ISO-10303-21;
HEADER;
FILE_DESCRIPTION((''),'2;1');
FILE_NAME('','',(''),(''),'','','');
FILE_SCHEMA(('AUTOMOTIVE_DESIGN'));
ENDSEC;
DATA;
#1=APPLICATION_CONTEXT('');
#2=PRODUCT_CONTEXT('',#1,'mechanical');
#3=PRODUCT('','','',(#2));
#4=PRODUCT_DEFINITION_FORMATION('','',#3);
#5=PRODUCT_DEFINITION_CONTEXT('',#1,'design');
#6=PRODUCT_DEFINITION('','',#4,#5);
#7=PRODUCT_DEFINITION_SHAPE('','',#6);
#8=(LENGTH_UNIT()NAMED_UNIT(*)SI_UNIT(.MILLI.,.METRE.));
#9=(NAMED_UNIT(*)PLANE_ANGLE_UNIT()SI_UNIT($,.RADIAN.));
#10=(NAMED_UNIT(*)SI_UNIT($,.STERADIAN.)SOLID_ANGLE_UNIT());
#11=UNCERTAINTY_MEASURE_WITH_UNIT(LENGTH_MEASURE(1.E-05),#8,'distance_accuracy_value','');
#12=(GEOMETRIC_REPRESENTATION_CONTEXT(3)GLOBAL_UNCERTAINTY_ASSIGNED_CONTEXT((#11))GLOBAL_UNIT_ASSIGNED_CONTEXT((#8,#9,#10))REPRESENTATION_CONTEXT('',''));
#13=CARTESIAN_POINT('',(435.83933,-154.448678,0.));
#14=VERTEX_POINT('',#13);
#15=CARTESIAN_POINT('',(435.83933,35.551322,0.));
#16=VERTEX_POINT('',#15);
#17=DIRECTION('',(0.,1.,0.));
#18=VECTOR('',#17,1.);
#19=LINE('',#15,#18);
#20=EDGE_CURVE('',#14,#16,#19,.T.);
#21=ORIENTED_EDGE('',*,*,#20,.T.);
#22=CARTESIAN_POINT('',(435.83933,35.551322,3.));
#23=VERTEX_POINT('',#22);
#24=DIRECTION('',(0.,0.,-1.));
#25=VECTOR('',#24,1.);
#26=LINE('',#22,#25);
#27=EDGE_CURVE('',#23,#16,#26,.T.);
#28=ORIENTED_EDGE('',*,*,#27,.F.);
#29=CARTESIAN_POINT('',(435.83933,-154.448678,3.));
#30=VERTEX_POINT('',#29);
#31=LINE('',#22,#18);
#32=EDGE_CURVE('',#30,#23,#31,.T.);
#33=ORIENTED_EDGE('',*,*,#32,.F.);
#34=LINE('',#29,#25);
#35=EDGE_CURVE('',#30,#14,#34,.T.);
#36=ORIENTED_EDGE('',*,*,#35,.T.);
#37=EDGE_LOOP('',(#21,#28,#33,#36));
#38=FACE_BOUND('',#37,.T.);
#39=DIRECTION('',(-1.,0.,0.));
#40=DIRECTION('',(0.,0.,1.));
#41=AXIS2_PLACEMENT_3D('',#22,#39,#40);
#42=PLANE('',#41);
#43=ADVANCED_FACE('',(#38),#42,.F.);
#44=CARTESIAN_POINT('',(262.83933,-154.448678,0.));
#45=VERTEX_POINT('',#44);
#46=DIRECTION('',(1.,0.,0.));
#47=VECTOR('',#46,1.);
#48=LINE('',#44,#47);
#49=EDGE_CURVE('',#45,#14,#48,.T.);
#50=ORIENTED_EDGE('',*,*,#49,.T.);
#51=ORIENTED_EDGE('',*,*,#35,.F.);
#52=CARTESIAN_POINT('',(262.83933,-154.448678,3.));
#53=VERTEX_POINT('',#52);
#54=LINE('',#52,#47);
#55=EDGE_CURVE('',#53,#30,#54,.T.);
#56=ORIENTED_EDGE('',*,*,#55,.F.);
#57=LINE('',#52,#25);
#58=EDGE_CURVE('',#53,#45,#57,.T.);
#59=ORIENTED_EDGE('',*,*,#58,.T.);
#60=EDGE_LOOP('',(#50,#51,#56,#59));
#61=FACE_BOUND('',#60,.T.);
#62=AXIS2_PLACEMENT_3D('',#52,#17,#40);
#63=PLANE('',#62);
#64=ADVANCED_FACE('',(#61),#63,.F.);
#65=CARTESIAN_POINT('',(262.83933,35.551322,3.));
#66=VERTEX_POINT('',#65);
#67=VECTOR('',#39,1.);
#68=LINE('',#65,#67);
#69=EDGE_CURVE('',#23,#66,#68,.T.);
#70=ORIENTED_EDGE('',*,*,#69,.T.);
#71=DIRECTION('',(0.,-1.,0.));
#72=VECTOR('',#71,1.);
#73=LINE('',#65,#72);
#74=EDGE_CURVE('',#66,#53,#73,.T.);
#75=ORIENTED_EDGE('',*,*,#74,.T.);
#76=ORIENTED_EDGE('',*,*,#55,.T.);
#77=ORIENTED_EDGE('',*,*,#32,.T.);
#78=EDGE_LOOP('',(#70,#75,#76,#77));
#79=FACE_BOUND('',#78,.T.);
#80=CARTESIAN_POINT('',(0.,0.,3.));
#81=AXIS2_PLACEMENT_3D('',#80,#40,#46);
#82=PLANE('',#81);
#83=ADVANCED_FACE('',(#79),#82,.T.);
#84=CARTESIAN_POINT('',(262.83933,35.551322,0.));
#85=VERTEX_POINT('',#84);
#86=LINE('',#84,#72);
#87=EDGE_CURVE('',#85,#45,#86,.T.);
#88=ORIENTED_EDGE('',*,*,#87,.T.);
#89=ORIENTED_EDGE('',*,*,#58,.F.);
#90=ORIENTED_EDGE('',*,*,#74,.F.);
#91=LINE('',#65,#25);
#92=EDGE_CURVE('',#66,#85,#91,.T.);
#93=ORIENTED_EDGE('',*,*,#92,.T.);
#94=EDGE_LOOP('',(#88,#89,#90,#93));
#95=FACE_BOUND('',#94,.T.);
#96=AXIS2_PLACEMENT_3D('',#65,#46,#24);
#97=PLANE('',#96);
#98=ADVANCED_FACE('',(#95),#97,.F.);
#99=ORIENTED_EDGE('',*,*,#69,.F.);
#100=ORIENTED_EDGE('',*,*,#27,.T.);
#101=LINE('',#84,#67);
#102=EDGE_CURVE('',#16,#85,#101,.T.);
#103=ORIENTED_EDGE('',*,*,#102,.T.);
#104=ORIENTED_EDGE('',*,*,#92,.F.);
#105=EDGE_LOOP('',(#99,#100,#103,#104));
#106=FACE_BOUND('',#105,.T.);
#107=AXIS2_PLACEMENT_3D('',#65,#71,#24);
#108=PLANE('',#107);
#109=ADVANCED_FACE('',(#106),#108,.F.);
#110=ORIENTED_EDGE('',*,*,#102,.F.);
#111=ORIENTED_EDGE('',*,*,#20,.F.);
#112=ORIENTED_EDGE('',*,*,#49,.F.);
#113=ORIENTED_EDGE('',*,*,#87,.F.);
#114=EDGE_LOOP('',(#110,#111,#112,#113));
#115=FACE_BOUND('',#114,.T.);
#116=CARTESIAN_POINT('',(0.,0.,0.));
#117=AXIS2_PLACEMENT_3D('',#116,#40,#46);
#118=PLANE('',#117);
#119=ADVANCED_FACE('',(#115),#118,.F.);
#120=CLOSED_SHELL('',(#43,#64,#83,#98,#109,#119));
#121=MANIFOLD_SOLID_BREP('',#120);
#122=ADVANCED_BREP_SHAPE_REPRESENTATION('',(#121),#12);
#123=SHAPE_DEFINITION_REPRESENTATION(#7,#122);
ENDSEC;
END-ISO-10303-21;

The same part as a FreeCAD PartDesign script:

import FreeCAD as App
import Part
import Sketcher
from FreeCAD import Vector


def add_polygon(sketch, points):
    """Adds a closed chain of lines whose ends are joined by coincident constraints."""
    first, n = sketch.GeometryCount, len(points)
    for a, b in zip(points, points[1:] + points[:1]):
        sketch.addGeometry(Part.LineSegment(App.Vector(*a, 0), App.Vector(*b, 0)), False)
    for i in range(n):
        sketch.addConstraint(Sketcher.Constraint("Coincident", first + i, 2, first + (i + 1) % n, 1))

doc = App.newDocument("Part")
body = doc.addObject("PartDesign::Body", "Body")

sketch1 = doc.addObject("Sketcher::SketchObject", "Sketch")
body.addObject(sketch1)
sketch1.AttachmentSupport = (doc.XY_Plane, [""])
sketch1.MapMode = "FlatFace"
add_polygon(sketch1, [(263, 36), (263, -154), (436, -154), (436, 36)])
sketch1.addConstraint([
    Sketcher.Constraint("Vertical", 0),
    Sketcher.Constraint("Horizontal", 1),
    Sketcher.Constraint("Vertical", 2),
    Sketcher.Constraint("Horizontal", 3),
    Sketcher.Constraint("DistanceX", 1, 1, 1, 2, 173.0),
    Sketcher.Constraint("DistanceY", 0, 2, 0, 1, 190.0),
    Sketcher.Constraint("DistanceX", -1, 1, 0, 2, 262.83933),
    Sketcher.Constraint("DistanceY", 0, 2, -1, 1, 154.448678),
])
pad1 = doc.addObject("PartDesign::Pad", "Pad")
body.addObject(pad1)
pad1.Profile = sketch1
pad1.Length = 3

doc.recompute()
